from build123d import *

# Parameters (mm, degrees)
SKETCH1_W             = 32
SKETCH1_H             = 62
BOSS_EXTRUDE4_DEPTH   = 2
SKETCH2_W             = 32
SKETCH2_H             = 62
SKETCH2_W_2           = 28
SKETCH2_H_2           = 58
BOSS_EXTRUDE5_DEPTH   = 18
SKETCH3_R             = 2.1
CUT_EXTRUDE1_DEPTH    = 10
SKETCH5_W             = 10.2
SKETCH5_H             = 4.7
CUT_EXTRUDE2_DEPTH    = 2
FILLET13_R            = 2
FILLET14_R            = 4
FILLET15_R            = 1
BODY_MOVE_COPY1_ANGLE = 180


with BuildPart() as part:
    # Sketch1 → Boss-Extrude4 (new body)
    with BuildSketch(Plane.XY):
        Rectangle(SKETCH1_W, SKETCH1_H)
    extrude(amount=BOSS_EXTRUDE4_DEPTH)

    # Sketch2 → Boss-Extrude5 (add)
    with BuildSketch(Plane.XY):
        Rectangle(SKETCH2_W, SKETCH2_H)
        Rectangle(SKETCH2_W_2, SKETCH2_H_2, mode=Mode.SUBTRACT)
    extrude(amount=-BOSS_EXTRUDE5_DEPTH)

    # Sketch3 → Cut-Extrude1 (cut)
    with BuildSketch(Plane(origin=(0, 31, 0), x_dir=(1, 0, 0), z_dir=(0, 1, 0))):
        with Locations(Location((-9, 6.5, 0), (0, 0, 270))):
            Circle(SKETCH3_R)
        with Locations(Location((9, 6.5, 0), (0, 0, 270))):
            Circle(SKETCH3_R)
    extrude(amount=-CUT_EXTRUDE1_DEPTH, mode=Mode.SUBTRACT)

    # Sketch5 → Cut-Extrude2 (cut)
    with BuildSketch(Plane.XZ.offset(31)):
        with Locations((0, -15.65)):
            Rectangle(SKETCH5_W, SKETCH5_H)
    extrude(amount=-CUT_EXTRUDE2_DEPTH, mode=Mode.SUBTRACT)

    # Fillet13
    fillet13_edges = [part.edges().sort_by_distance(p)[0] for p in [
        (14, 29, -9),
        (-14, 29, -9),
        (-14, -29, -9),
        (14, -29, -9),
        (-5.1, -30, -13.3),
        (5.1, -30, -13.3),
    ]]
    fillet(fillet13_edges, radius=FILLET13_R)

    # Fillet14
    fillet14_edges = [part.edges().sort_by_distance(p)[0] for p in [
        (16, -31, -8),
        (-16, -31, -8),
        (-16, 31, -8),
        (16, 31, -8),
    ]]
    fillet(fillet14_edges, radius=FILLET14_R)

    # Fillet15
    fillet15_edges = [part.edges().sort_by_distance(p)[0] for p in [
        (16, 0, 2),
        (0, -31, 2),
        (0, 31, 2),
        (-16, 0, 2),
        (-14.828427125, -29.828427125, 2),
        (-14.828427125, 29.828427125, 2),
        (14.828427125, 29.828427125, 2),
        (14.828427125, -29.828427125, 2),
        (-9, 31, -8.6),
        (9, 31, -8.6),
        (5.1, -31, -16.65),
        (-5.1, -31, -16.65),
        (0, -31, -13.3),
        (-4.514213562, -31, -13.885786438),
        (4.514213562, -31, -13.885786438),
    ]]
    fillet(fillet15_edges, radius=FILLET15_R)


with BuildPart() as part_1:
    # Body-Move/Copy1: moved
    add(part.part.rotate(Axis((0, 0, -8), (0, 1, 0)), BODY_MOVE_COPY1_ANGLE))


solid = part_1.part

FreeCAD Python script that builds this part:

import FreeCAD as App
import Part
import Sketcher

V = App.Vector


def edges_at(feature, points):
    """Names of the edges that pass closest to the given points."""
    edges = feature.Shape.Edges
    near = lambda p: min(range(len(edges)), key=lambda i: edges[i].distToShape(Part.Vertex(*p))[0])
    return sorted({f"Edge{near(p) + 1}" for p in points})

doc = App.newDocument("Part")
body = doc.addObject("PartDesign::Body", "Body")

sketch1 = body.newObject("Sketcher::SketchObject", "Sketch")
sketch1.AttachmentSupport = (doc.getObject("XY_Plane"), [""])
sketch1.MapMode = "FlatFace"
sketch1.addGeometry([
    Part.LineSegment(V(-16, 31, 0), V(-16, -31, 0)),
    Part.LineSegment(V(-16, -31, 0), V(16, -31, 0)),
    Part.LineSegment(V(16, -31, 0), V(16, 31, 0)),
    Part.LineSegment(V(16, 31, 0), V(-16, 31, 0)),
], False)
sketch1.addConstraint([
    Sketcher.Constraint("Coincident", 0, 2, 1, 1),
    Sketcher.Constraint("Coincident", 1, 2, 2, 1),
    Sketcher.Constraint("Coincident", 2, 2, 3, 1),
    Sketcher.Constraint("Coincident", 3, 2, 0, 1),
    Sketcher.Constraint("Vertical", 0),
    Sketcher.Constraint("Horizontal", 1),
    Sketcher.Constraint("Vertical", 2),
    Sketcher.Constraint("Horizontal", 3),
    Sketcher.Constraint("Symmetric", 0, 2, 2, 2, -1, 1),
    Sketcher.Constraint("DistanceX", 1, 1, 1, 2, 32.0),
    Sketcher.Constraint("DistanceY", 0, 2, 0, 1, 62.0),
])
pad1 = body.newObject("PartDesign::Pad", "Pad")
pad1.Profile = sketch1
pad1.Length = 2

sketch2 = body.newObject("Sketcher::SketchObject", "Sketch001")
sketch2.AttachmentSupport = (doc.getObject("XY_Plane"), [""])
sketch2.MapMode = "FlatFace"
sketch2.addGeometry([
    Part.LineSegment(V(-16, 31, 0), V(-16, -31, 0)),
    Part.LineSegment(V(-16, -31, 0), V(16, -31, 0)),
    Part.LineSegment(V(16, -31, 0), V(16, 31, 0)),
    Part.LineSegment(V(16, 31, 0), V(-16, 31, 0)),
    Part.LineSegment(V(14, -29, 0), V(-14, -29, 0)),
    Part.LineSegment(V(-14, -29, 0), V(-14, 29, 0)),
    Part.LineSegment(V(-14, 29, 0), V(14, 29, 0)),
    Part.LineSegment(V(14, 29, 0), V(14, -29, 0)),
], False)
sketch2.addConstraint([
    Sketcher.Constraint("Coincident", 0, 2, 1, 1),
    Sketcher.Constraint("Coincident", 1, 2, 2, 1),
    Sketcher.Constraint("Coincident", 2, 2, 3, 1),
    Sketcher.Constraint("Coincident", 3, 2, 0, 1),
    Sketcher.Constraint("Coincident", 4, 2, 5, 1),
    Sketcher.Constraint("Coincident", 5, 2, 6, 1),
    Sketcher.Constraint("Coincident", 6, 2, 7, 1),
    Sketcher.Constraint("Coincident", 7, 2, 4, 1),
    Sketcher.Constraint("Vertical", 0),
    Sketcher.Constraint("Horizontal", 1),
    Sketcher.Constraint("Vertical", 2),
    Sketcher.Constraint("Horizontal", 3),
    Sketcher.Constraint("Horizontal", 4),
    Sketcher.Constraint("Vertical", 5),
    Sketcher.Constraint("Horizontal", 6),
    Sketcher.Constraint("Vertical", 7),
    Sketcher.Constraint("Symmetric", 0, 2, 2, 2, -1, 1),
    Sketcher.Constraint("Symmetric", 4, 2, 6, 2, -1, 1),
    Sketcher.Constraint("DistanceX", 1, 1, 1, 2, 32.0),
    Sketcher.Constraint("DistanceX", 4, 2, 4, 1, 28.0),
    Sketcher.Constraint("DistanceY", 0, 2, 0, 1, 62.0),
    Sketcher.Constraint("DistanceY", 5, 1, 5, 2, 58.0),
])
pad2 = body.newObject("PartDesign::Pad", "Pad001")
pad2.Profile = sketch2
pad2.Length = 18
pad2.Reversed = True

sketch3 = body.newObject("Sketcher::SketchObject", "Sketch002")
sketch3.AttachmentSupport = (doc.getObject("XZ_Plane"), [""])
sketch3.MapMode = "FlatFace"
sketch3.AttachmentOffset = App.Placement(V(0, 0, -31), App.Rotation())
sketch3.addGeometry([
    Part.Circle(V(-9, -6.5, 0), V(0, 0, 1), 2.1),
    Part.Circle(V(9, -6.5, 0), V(0, 0, 1), 2.1),
], False)
sketch3.addConstraint([
    Sketcher.Constraint("Equal", 0, 1),
    Sketcher.Constraint("Symmetric", 0, 3, 1, 3, -2),
    Sketcher.Constraint("Diameter", 0, 4.2),
    Sketcher.Constraint("DistanceX", 0, 3, -1, 1, 9.0),
    Sketcher.Constraint("DistanceY", 0, 3, -1, 1, 6.5),
])
pocket1 = body.newObject("PartDesign::Pocket", "Pocket")
pocket1.Profile = sketch3
pocket1.Length = 10
pocket1.Reversed = True

sketch4 = body.newObject("Sketcher::SketchObject", "Sketch003")
sketch4.AttachmentSupport = (doc.getObject("XZ_Plane"), [""])
sketch4.MapMode = "FlatFace"
sketch4.AttachmentOffset = App.Placement(V(0, 0, 31), App.Rotation())
sketch4.addGeometry([
    Part.LineSegment(V(-5.1, -13.3, 0), V(-5.1, -18, 0)),
    Part.LineSegment(V(-5.1, -18, 0), V(5.1, -18, 0)),
    Part.LineSegment(V(5.1, -18, 0), V(5.1, -13.3, 0)),
    Part.LineSegment(V(5.1, -13.3, 0), V(-5.1, -13.3, 0)),
], False)
sketch4.addConstraint([
    Sketcher.Constraint("Coincident", 0, 2, 1, 1),
    Sketcher.Constraint("Coincident", 1, 2, 2, 1),
    Sketcher.Constraint("Coincident", 2, 2, 3, 1),
    Sketcher.Constraint("Coincident", 3, 2, 0, 1),
    Sketcher.Constraint("Vertical", 0),
    Sketcher.Constraint("Horizontal", 1),
    Sketcher.Constraint("Vertical", 2),
    Sketcher.Constraint("Horizontal", 3),
    Sketcher.Constraint("DistanceX", 1, 1, 1, 2, 10.2),
    Sketcher.Constraint("DistanceY", 0, 2, 0, 1, 4.7),
    Sketcher.Constraint("DistanceY", 0, 2, -1, 1, 18.0),
    Sketcher.Constraint("DistanceX", 0, 2, -1, 1, 5.1),
])
pocket2 = body.newObject("PartDesign::Pocket", "Pocket001")
pocket2.Profile = sketch4
pocket2.Length = 2
doc.recompute()

fillet = body.newObject("PartDesign::Fillet", "Fillet")
fillet.Base = (pocket2, edges_at(pocket2, [
    (14, 29, -9),
    (-14, 29, -9),
    (-14, -29, -9),
    (14, -29, -9),
    (-5.1, -30, -13.3),
    (5.1, -30, -13.3),
]))
fillet.Radius = 2
doc.recompute()

fillet2 = body.newObject("PartDesign::Fillet", "Fillet001")
fillet2.Base = (fillet, edges_at(fillet, [
    (16, -31, -8),
    (-16, -31, -8),
    (-16, 31, -8),
    (16, 31, -8),
]))
fillet2.Radius = 4
doc.recompute()

fillet3 = body.newObject("PartDesign::Fillet", "Fillet002")
fillet3.Base = (fillet2, edges_at(fillet2, [
    (16, 0, 2),
    (0, -31, 2),
    (0, 31, 2),
    (-16, 0, 2),
    (-14.828, -29.828, 2),
    (-14.828, 29.828, 2),
    (14.828, 29.828, 2),
    (14.828, -29.828, 2),
    (-9, 31, -8.6),
    (9, 31, -8.6),
    (5.1, -31, -16.65),
    (-5.1, -31, -16.65),
    (0, -31, -13.3),
    (-4.514, -31, -13.886),
    (4.514, -31, -13.886),
]))
fillet3.Radius = 1
body2 = doc.addObject("PartDesign::Body", "Body001")
doc.recompute()

body.Placement = App.Placement(V(0, 0, -16), App.Rotation(V(0, 1, 0), 180))
boolean = body2.newObject("PartDesign::Boolean", "Boolean")
boolean.Type = "Fuse"
boolean.addObjects([body])

doc.recompute()
